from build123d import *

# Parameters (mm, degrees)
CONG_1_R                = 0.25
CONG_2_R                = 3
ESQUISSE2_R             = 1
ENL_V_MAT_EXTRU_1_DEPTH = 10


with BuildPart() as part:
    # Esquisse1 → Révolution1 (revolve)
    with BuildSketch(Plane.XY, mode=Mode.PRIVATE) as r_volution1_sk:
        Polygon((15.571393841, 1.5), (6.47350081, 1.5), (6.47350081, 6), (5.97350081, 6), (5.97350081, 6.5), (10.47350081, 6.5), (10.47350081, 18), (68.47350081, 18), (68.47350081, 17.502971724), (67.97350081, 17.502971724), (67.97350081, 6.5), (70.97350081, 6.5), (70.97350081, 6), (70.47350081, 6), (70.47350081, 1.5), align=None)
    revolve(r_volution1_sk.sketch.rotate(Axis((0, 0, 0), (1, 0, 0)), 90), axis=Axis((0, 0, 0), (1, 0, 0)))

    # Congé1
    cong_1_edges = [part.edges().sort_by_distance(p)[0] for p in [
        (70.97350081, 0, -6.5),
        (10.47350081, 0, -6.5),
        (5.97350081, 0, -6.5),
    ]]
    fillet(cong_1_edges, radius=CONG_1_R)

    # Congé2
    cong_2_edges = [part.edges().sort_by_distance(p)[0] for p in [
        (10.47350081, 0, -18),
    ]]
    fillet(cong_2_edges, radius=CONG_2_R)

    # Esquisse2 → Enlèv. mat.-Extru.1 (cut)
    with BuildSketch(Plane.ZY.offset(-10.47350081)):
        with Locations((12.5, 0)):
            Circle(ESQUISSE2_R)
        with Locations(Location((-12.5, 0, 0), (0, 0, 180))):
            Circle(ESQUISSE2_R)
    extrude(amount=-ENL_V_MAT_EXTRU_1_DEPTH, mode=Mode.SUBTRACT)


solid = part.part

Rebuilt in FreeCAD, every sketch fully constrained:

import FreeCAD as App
import Part
import Sketcher
from FreeCAD import Vector
Q = App.Units.Quantity


def edges_at(feature, points):
    """Names of the edges that pass closest to the given points."""
    edges = feature.Shape.Edges
    near = lambda p: min(range(len(edges)), key=lambda i: edges[i].distToShape(Part.Vertex(*p))[0])
    return sorted({f"Edge{near(p) + 1}" for p in points})

doc = App.newDocument("Part")
body = doc.addObject("PartDesign::Body", "Body")

sketch1 = body.newObject("Sketcher::SketchObject", "Sketch")
sketch1.AttachmentSupport = (doc.getObject("XY_Plane"), [""])
sketch1.MapMode = "FlatFace"
sketch1.addGeometry([
    Part.LineSegment(Vector(6.47, 1.5, 0), Vector(70.47, 1.5, 0)),
    Part.LineSegment(Vector(70.47, 1.5, 0), Vector(70.47, 6, 0)),
    Part.LineSegment(Vector(70.47, 6, 0), Vector(70.97, 6, 0)),
    Part.LineSegment(Vector(70.97, 6, 0), Vector(70.97, 6.5, 0)),
    Part.LineSegment(Vector(70.97, 6.5, 0), Vector(67.97, 6.5, 0)),
    Part.LineSegment(Vector(67.97, 6.5, 0), Vector(67.97, 17.5, 0)),
    Part.LineSegment(Vector(67.97, 17.5, 0), Vector(68.47, 17.5, 0)),
    Part.LineSegment(Vector(68.47, 17.5, 0), Vector(68.47, 18, 0)),
    Part.LineSegment(Vector(68.47, 18, 0), Vector(10.47, 18, 0)),
    Part.LineSegment(Vector(10.47, 18, 0), Vector(10.47, 6.5, 0)),
    Part.LineSegment(Vector(10.47, 6.5, 0), Vector(5.97, 6.5, 0)),
    Part.LineSegment(Vector(5.97, 6.5, 0), Vector(5.97, 6, 0)),
    Part.LineSegment(Vector(5.97, 6, 0), Vector(6.47, 6, 0)),
    Part.LineSegment(Vector(6.47, 6, 0), Vector(6.47, 1.5, 0)),
], False)
sketch1.addConstraint([
    Sketcher.Constraint("Coincident", 0, 2, 1, 1),
    Sketcher.Constraint("Coincident", 1, 2, 2, 1),
    Sketcher.Constraint("Coincident", 2, 2, 3, 1),
    Sketcher.Constraint("Coincident", 3, 2, 4, 1),
    Sketcher.Constraint("Coincident", 4, 2, 5, 1),
    Sketcher.Constraint("Coincident", 5, 2, 6, 1),
    Sketcher.Constraint("Coincident", 6, 2, 7, 1),
    Sketcher.Constraint("Coincident", 7, 2, 8, 1),
    Sketcher.Constraint("Coincident", 8, 2, 9, 1),
    Sketcher.Constraint("Coincident", 9, 2, 10, 1),
    Sketcher.Constraint("Coincident", 10, 2, 11, 1),
    Sketcher.Constraint("Coincident", 11, 2, 12, 1),
    Sketcher.Constraint("Coincident", 12, 2, 13, 1),
    Sketcher.Constraint("Coincident", 13, 2, 0, 1),
    Sketcher.Constraint("Horizontal", 0),
    Sketcher.Constraint("Vertical", 1),
    Sketcher.Constraint("Horizontal", 2),
    Sketcher.Constraint("Vertical", 3),
    Sketcher.Constraint("Horizontal", 4),
    Sketcher.Constraint("Vertical", 5),
    Sketcher.Constraint("Horizontal", 6),
    Sketcher.Constraint("Vertical", 7),
    Sketcher.Constraint("Horizontal", 8),
    Sketcher.Constraint("Vertical", 9),
    Sketcher.Constraint("Horizontal", 10),
    Sketcher.Constraint("Vertical", 11),
    Sketcher.Constraint("Horizontal", 12),
    Sketcher.Constraint("Vertical", 13),
    Sketcher.Constraint("Horizontal", 4, 2, 9, 2),
    Sketcher.Constraint("Horizontal", 2, 2, 11, 2),
    Sketcher.Constraint("Equal", 2, 6),
    Sketcher.Constraint("Equal", 6, 12),
    Sketcher.Constraint("Equal", 10, 1),
    Sketcher.Constraint("Equal", 12, 3),
    Sketcher.Constraint("DistanceX", 0, 1, 0, 2, Q("64 mm")),
    Sketcher.Constraint("DistanceX", 4, 2, 4, 1, Q("3 mm")),
    Sketcher.Constraint("DistanceX", 8, 2, 8, 1, Q("58 mm")),
    Sketcher.Constraint("DistanceX", 2, 1, 2, 2, Q("0.5 mm")),
    Sketcher.Constraint("DistanceY", 9, 2, 9, 1, Q("11.5 mm")),
    Sketcher.Constraint("DistanceY", -1, 1, 1, 2, Q("6 mm")),
    Sketcher.Constraint("DistanceY", 5, 1, 5, 2, Q("11.002972 mm")),
    Sketcher.Constraint("DistanceX", -1, 1, 0, 2, Q("70.473501 mm")),
])
revolution = body.newObject("PartDesign::Revolution", "Revolution")
revolution.Profile = sketch1
revolution.ReferenceAxis = (sketch1, ["H_Axis"])
revolution.Angle = 360
doc.recompute()

fillet = body.newObject("PartDesign::Fillet", "Fillet")
fillet.Base = (revolution, edges_at(revolution, [(70.974, 0, -6.5), (10.474, 0, -6.5), (5.974, 0, -6.5)]))
fillet.Radius = 0.25
doc.recompute()

fillet2 = body.newObject("PartDesign::Fillet", "Fillet001")
fillet2.Base = (fillet, edges_at(fillet, [(10.474, 0, -18)]))
fillet2.Radius = 3

sketch2 = body.newObject("Sketcher::SketchObject", "Sketch001")
sketch2.AttachmentSupport = (doc.getObject("YZ_Plane"), [""])
sketch2.MapMode = "FlatFace"
sketch2.AttachmentOffset = App.Placement(Vector(0, 0, 10.473501), App.Rotation())
sketch2.addGeometry([
    Part.Circle(Vector(0, 12.5, 0), Vector(0, 0, 1), 1),
    Part.Circle(Vector(0, -12.5, 0), Vector(0, 0, 1), 1),
], False)
sketch2.addConstraint([
    Sketcher.Constraint("Equal", 0, 1),
    Sketcher.Constraint("Symmetric", 0, 3, 1, 3, -1, 1),
    Sketcher.Constraint("PointOnObject", 0, 3, -2),
    Sketcher.Constraint("Diameter", 0, Q("2 mm")),
    Sketcher.Constraint("DistanceY", 1, 3, 0, 3, Q("25 mm")),
])
pocket1 = body.newObject("PartDesign::Pocket", "Pocket")
pocket1.Profile = sketch2
pocket1.Length = 10
pocket1.Reversed = True

doc.recompute()
